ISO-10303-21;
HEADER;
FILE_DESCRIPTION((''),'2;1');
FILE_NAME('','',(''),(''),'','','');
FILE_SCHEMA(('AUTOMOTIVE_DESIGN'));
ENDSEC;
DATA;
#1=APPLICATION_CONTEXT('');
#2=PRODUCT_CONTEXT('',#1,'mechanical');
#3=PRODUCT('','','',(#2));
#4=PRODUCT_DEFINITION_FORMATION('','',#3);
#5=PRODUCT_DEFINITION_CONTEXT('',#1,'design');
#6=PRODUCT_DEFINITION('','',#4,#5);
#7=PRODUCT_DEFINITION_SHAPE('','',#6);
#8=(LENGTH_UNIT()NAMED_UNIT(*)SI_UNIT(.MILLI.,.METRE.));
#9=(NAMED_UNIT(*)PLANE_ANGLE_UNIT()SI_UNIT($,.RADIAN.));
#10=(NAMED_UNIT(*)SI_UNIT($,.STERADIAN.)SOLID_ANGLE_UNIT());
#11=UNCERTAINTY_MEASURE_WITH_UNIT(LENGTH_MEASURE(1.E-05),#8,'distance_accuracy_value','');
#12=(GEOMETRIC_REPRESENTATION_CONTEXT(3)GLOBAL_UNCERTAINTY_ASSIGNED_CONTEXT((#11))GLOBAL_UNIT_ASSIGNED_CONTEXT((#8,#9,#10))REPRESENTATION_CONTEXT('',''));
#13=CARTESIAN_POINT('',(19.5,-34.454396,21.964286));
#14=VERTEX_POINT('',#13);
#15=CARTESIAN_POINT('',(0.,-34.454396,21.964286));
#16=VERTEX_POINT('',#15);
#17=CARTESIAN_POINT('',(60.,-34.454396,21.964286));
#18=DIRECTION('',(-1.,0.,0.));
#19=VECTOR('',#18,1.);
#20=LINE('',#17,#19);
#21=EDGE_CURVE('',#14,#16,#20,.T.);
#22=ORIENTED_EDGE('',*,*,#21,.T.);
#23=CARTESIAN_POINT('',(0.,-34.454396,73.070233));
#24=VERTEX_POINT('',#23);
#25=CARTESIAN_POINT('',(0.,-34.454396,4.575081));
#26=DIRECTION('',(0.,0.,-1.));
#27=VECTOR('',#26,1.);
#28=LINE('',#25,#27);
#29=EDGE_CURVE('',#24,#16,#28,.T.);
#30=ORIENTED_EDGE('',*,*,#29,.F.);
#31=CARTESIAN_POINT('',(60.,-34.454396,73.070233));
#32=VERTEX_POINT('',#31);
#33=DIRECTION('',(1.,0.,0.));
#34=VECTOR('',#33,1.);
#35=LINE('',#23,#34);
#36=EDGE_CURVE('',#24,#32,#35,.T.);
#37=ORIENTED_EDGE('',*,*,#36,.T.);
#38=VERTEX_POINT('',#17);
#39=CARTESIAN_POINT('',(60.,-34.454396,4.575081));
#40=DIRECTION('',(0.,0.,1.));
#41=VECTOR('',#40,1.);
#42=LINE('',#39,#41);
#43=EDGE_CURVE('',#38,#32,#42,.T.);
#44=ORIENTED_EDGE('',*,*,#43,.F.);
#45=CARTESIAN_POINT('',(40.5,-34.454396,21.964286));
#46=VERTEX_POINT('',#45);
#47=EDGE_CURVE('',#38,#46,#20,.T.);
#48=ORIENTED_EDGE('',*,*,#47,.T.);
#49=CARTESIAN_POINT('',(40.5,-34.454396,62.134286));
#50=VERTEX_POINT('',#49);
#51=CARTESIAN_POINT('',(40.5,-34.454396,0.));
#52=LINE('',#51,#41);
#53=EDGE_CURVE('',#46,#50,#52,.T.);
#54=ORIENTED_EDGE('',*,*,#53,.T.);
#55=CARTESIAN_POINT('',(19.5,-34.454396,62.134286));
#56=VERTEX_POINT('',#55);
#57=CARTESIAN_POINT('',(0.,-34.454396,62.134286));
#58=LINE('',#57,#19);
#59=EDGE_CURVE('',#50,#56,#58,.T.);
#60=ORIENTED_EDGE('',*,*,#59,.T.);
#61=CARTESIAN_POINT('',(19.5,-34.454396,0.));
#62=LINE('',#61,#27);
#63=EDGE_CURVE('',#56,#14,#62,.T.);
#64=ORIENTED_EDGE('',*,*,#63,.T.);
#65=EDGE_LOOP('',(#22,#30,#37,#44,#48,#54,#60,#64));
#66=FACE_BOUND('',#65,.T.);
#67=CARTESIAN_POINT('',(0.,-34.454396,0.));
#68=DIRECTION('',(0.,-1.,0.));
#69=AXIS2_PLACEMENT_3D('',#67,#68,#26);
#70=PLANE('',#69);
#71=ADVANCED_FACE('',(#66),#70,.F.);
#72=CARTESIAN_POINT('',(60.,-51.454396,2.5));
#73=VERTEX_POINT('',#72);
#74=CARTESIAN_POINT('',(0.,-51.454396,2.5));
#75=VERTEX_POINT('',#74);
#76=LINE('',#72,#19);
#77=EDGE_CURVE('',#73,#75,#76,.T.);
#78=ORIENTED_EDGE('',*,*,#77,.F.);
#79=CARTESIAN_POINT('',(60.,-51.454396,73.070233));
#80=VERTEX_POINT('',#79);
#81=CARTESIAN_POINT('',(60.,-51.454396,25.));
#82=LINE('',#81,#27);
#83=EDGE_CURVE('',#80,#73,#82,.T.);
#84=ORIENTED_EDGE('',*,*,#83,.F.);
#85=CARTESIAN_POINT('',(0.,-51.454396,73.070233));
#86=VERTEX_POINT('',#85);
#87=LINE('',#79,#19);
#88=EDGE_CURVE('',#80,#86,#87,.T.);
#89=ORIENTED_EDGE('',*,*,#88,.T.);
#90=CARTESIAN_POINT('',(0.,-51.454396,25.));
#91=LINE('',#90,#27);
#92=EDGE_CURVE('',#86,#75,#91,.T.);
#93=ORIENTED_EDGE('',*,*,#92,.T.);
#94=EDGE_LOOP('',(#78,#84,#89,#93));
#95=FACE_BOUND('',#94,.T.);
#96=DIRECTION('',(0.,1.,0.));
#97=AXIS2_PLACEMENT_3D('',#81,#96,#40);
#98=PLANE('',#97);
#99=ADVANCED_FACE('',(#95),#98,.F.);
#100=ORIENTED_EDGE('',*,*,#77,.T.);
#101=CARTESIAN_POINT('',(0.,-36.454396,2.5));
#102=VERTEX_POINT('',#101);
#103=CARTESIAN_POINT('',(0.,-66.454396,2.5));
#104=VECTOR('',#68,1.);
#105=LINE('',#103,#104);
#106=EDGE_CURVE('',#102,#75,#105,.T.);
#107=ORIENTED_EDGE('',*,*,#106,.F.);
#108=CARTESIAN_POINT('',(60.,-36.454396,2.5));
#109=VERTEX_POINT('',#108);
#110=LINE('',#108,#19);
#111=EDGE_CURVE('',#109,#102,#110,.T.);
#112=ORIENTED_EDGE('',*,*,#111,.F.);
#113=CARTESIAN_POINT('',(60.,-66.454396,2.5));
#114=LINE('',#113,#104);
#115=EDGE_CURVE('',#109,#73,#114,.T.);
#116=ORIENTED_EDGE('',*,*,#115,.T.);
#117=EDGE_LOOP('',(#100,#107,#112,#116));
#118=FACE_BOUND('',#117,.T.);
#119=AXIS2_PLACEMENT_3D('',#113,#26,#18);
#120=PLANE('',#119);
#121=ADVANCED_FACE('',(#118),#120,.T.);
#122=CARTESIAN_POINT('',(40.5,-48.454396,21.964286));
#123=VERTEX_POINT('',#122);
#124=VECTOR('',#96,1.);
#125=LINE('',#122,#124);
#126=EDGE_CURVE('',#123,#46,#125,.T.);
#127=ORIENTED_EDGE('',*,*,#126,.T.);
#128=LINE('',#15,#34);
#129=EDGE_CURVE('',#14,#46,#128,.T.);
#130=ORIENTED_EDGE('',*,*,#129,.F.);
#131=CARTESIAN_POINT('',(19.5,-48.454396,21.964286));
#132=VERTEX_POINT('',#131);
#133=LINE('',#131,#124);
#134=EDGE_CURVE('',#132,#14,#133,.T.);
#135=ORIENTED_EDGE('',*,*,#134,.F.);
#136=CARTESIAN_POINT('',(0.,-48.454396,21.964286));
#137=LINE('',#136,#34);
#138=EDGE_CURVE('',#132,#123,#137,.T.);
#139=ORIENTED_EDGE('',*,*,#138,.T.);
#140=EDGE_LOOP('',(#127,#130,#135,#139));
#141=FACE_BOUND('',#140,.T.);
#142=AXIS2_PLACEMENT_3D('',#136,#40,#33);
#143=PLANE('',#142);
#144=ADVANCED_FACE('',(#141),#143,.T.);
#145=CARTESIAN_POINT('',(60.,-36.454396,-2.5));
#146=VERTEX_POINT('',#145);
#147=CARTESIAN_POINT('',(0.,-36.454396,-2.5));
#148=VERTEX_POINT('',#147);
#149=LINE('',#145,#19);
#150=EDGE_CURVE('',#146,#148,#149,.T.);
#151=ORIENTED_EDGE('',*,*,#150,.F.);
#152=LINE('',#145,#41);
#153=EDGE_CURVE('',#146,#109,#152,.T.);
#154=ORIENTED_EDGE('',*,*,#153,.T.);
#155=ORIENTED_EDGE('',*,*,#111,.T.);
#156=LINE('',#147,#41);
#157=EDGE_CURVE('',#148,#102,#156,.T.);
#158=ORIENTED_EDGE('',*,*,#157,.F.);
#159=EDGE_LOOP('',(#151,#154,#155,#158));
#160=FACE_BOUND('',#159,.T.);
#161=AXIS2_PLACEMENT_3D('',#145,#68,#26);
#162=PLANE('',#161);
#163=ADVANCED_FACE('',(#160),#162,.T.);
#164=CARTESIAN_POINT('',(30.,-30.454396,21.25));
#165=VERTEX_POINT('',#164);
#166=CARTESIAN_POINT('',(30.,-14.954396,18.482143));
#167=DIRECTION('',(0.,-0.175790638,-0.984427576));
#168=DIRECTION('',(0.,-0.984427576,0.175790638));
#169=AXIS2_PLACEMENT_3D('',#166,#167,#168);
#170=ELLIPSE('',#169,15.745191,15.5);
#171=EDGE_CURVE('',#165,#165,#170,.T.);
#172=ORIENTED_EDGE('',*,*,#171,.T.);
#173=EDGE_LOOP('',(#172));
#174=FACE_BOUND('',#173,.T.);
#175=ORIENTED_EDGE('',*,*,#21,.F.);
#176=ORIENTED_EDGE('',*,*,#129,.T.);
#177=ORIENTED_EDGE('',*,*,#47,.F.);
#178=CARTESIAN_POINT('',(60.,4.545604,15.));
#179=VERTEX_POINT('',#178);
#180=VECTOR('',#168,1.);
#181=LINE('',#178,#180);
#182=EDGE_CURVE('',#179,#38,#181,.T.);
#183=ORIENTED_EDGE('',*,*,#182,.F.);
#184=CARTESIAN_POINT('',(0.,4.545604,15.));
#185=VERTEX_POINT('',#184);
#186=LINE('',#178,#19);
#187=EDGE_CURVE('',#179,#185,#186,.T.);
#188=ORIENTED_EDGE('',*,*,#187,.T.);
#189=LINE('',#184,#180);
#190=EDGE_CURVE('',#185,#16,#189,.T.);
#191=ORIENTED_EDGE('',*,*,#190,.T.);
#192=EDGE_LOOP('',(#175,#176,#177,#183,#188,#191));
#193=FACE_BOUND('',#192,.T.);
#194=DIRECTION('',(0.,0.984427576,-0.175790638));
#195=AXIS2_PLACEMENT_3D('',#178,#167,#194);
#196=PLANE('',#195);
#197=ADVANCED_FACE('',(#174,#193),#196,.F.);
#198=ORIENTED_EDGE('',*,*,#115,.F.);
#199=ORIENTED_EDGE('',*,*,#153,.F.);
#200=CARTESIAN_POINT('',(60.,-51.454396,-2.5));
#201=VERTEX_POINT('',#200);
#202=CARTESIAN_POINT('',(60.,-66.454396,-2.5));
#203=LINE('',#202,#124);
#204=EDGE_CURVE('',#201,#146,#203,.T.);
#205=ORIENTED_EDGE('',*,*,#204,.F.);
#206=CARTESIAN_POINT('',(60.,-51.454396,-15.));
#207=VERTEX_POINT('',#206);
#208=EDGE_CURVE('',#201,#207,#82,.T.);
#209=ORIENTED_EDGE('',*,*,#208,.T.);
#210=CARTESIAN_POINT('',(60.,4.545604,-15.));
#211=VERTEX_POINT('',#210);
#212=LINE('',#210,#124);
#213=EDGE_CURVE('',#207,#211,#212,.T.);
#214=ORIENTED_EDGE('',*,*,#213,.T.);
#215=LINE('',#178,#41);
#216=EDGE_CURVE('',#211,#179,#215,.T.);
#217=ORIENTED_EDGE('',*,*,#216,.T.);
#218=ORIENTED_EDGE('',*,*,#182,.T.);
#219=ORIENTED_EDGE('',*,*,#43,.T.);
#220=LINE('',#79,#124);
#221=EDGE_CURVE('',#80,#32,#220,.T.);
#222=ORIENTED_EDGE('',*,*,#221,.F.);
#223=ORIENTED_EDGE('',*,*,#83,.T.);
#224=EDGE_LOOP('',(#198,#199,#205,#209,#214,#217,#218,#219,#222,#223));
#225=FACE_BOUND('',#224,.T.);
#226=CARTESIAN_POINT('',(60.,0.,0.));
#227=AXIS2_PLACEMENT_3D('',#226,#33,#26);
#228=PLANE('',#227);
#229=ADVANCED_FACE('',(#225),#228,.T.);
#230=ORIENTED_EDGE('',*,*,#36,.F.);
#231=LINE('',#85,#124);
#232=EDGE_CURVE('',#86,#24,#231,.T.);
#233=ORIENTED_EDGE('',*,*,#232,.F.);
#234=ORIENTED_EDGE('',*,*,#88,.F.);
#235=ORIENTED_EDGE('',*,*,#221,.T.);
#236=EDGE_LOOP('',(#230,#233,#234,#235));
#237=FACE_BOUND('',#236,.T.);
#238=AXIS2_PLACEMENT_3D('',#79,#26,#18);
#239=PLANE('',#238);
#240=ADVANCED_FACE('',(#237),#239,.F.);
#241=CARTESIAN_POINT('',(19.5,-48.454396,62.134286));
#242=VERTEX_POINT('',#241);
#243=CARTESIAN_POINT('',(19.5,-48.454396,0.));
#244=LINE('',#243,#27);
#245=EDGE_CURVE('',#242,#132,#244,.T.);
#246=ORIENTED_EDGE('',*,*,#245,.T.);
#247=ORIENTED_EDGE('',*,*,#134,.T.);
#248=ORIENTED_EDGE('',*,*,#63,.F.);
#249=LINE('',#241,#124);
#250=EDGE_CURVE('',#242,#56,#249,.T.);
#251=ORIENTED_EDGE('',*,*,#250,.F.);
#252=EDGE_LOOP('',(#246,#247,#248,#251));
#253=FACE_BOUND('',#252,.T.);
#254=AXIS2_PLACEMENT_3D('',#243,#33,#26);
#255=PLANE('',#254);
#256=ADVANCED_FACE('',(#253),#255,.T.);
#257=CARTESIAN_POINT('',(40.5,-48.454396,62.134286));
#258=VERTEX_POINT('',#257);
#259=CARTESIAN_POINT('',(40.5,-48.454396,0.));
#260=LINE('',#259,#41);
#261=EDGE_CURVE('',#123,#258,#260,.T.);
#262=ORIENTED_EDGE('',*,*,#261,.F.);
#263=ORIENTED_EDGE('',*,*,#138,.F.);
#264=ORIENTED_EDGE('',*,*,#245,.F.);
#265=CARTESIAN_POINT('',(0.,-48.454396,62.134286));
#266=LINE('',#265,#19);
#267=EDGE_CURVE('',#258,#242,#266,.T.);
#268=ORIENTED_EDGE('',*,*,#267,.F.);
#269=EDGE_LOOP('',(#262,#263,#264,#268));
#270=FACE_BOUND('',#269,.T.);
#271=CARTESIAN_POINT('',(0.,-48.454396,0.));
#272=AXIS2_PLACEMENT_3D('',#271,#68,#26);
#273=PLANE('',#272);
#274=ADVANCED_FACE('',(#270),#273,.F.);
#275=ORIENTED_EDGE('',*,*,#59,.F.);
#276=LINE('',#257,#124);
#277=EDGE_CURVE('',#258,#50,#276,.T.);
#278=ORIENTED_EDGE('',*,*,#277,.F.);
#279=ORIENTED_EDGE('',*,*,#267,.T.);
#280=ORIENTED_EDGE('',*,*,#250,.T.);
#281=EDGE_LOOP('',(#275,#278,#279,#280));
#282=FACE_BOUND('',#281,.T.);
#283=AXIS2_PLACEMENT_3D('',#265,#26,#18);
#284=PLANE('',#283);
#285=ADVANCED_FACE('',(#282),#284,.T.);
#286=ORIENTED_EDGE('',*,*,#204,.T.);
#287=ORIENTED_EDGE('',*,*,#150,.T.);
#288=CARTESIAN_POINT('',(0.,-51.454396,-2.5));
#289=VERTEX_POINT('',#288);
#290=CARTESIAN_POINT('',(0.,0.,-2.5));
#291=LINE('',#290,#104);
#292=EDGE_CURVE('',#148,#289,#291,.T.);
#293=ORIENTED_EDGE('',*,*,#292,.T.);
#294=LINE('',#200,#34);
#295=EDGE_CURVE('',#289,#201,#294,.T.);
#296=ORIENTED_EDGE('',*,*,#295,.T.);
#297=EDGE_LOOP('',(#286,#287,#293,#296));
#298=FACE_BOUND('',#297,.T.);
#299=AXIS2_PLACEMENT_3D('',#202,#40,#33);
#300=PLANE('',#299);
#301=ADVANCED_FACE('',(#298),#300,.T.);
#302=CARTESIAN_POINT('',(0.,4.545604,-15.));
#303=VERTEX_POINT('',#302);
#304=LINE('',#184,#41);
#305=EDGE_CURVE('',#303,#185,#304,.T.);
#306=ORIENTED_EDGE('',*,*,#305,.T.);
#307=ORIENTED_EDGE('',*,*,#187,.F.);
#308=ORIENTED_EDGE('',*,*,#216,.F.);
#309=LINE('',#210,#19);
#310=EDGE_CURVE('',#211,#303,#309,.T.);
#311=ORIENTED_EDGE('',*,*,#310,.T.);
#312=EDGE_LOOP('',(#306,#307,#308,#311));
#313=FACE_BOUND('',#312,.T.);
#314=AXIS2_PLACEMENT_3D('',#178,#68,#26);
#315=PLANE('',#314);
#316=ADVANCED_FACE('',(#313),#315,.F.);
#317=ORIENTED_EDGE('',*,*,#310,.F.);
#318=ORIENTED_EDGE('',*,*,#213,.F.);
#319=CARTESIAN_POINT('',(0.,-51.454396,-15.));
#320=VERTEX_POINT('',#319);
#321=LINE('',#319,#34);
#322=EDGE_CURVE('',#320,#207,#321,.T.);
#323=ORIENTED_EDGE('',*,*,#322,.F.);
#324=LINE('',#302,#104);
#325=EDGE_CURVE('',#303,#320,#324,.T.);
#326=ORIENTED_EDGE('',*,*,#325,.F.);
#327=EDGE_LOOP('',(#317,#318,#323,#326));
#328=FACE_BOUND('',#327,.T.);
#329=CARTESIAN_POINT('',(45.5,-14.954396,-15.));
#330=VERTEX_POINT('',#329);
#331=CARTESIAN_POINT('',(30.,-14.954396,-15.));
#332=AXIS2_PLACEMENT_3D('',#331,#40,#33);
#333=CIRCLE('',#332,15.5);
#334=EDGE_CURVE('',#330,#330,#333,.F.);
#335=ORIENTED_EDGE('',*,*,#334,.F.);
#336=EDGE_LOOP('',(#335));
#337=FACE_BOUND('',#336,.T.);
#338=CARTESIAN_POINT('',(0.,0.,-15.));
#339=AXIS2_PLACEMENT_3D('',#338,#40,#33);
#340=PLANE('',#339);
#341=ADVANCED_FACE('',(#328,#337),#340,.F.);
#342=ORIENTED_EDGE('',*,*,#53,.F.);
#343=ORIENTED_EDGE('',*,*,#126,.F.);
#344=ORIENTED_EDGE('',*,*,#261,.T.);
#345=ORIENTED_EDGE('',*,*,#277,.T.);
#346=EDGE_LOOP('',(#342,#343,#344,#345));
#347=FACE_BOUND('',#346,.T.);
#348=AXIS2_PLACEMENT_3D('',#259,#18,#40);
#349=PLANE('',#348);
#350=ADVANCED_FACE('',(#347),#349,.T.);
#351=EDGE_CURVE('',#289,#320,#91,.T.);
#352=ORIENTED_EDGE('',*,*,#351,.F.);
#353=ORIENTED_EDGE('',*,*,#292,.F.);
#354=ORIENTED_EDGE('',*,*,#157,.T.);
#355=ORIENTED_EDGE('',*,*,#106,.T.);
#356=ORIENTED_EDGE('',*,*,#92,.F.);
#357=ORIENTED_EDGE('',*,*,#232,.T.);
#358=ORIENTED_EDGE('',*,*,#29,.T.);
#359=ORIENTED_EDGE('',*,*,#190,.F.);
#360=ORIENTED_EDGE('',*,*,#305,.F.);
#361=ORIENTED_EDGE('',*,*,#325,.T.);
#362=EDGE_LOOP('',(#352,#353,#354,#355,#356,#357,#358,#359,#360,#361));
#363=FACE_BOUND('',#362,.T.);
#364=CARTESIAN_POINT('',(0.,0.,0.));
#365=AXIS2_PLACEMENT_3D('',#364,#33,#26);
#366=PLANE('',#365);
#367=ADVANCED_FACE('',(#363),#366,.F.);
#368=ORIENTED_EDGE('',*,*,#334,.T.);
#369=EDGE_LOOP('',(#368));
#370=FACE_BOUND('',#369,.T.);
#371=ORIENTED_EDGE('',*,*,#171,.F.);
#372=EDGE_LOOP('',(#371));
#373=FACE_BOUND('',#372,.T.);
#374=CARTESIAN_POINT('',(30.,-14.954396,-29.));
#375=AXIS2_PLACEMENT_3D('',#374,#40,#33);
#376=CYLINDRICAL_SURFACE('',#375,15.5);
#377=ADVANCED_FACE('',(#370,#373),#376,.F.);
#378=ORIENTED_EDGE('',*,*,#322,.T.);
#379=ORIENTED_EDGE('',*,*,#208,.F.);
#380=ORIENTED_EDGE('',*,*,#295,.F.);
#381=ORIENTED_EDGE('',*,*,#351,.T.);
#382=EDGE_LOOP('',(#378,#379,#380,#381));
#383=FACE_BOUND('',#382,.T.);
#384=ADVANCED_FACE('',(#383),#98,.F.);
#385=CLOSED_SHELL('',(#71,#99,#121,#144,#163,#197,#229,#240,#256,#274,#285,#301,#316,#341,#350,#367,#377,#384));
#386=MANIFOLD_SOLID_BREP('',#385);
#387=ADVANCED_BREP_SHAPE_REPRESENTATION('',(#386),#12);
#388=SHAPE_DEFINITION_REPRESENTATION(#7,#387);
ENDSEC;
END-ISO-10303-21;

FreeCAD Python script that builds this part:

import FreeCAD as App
import Part
import Sketcher
Q = App.Units.Quantity


def add_polygon(sketch, points):
    """Adds a closed chain of lines whose ends are joined by coincident constraints."""
    first, n = sketch.GeometryCount, len(points)
    for a, b in zip(points, points[1:] + points[:1]):
        sketch.addGeometry(Part.LineSegment(App.Vector(*a, 0), App.Vector(*b, 0)), False)
    for i in range(n):
        sketch.addConstraint(Sketcher.Constraint("Coincident", first + i, 2, first + (i + 1) % n, 1))

doc = App.newDocument("Part")
body = doc.addObject("PartDesign::Body", "Body")

# Sketch on YZ plane
sketch1 = body.newObject("Sketcher::SketchObject", "Sketch")
sketch1.AttachmentSupport = (doc.getObject("YZ_Plane"), [""])
sketch1.MapMode = "FlatFace"
add_polygon(sketch1, [(-51, 25), (-51, -25), (5, -15), (5, 15)])  # lines 0-3
sketch1.addConstraint(Sketcher.Constraint("Vertical", 0))
sketch1.addConstraint(Sketcher.Constraint("Vertical", 2))
sketch1.addConstraint(Sketcher.Constraint("Equal", 1, 3))
sketch1.addConstraint(Sketcher.Constraint("DistanceY", 0, 2, 0, 1, Q("50 mm")))
sketch1.addConstraint(Sketcher.Constraint("DistanceY", 2, 1, 2, 2, Q("30 mm")))
sketch1.addConstraint(Sketcher.Constraint("DistanceY", 0, 2, -1, 1, Q("25 mm")))
sketch1.addConstraint(Sketcher.Constraint("DistanceX", 0, 2, 1, 2, Q("56 mm")))
sketch1.addConstraint(Sketcher.Constraint("DistanceX", 0, 2, -1, 1, Q("51.454396 mm")))
pad1 = body.newObject("PartDesign::Pad", "Pad")
pad1.Profile = sketch1
pad1.Length = 60

# Sketch on XY plane
sketch2 = body.newObject("Sketcher::SketchObject", "Sketch001")
sketch2.AttachmentSupport = (doc.getObject("XY_Plane"), [""])
sketch2.MapMode = "FlatFace"
sketch2.addGeometry(Part.Circle(App.Vector(30, -15, 0), App.Vector(0, 0, 1), 16), False)
sketch2.addConstraint(Sketcher.Constraint("Diameter", 0, Q("31 mm")))
sketch2.addConstraint(Sketcher.Constraint("DistanceX", -1, 1, 0, 3, Q("30 mm")))
sketch2.addConstraint(Sketcher.Constraint("DistanceY", 0, 3, -1, 1, Q("14.954396 mm")))
pocket1 = body.newObject("PartDesign::Pocket", "Pocket")
pocket1.Profile = sketch2
pocket1.Type = "ThroughAll"
pocket1.Midplane = True

# Sketch on YZ plane
sketch3 = body.newObject("Sketcher::SketchObject", "Sketch002")
sketch3.AttachmentSupport = (doc.getObject("YZ_Plane"), [""])
sketch3.MapMode = "FlatFace"
add_polygon(sketch3, [(-36, 2), (-66, 2), (-66, -2), (-36, -2)])  # lines 0-3
sketch3.addConstraint(Sketcher.Constraint("Horizontal", 0))
sketch3.addConstraint(Sketcher.Constraint("Vertical", 1))
sketch3.addConstraint(Sketcher.Constraint("Horizontal", 2))
sketch3.addConstraint(Sketcher.Constraint("Vertical", 3))
sketch3.addConstraint(Sketcher.Constraint("DistanceX", 0, 2, 0, 1, Q("30 mm")))
sketch3.addConstraint(Sketcher.Constraint("DistanceY", 1, 2, 1, 1, Q("5 mm")))
sketch3.addConstraint(Sketcher.Constraint("DistanceY", -1, 1, 0, 2, Q("2.5 mm")))
sketch3.addConstraint(Sketcher.Constraint("DistanceX", 0, 2, -1, 1, Q("66.454396 mm")))
pocket2 = body.newObject("PartDesign::Pocket", "Pocket001")
pocket2.Profile = sketch3
pocket2.Type = "ThroughAll"
pocket2.Reversed = True

# Sketch on XZ plane
sketch4 = body.newObject("Sketcher::SketchObject", "Sketch003")
sketch4.AttachmentSupport = (doc.getObject("XZ_Plane"), [""])
sketch4.MapMode = "FlatFace"
sketch4.AttachmentOffset = App.Placement(App.Vector(0, 0, 51.454396), App.Rotation())
add_polygon(sketch4, [(60, 5), (60, 90), (0, 90), (0, 5)])  # lines 0-3
sketch4.addConstraint(Sketcher.Constraint("Vertical", 0))
sketch4.addConstraint(Sketcher.Constraint("Horizontal", 1))
sketch4.addConstraint(Sketcher.Constraint("Vertical", 2))
sketch4.addConstraint(Sketcher.Constraint("Horizontal", 3))
sketch4.addConstraint(Sketcher.Constraint("PointOnObject", 1, 2, -2))
sketch4.addConstraint(Sketcher.Constraint("DistanceX", 1, 2, 1, 1, Q("60 mm")))
sketch4.addConstraint(Sketcher.Constraint("DistanceY", -1, 1, 0, 2, Q("90 mm")))
sketch4.addConstraint(Sketcher.Constraint("DistanceY", 0, 1, 0, 2, Q("85.424919 mm")))
pad2 = body.newObject("PartDesign::Pad", "Pad001")
pad2.Profile = sketch4
pad2.Length = 17
pad2.Reversed = True

# Sketch on XZ plane
sketch5 = body.newObject("Sketcher::SketchObject", "Sketch004")
sketch5.AttachmentSupport = (doc.getObject("XZ_Plane"), [""])
sketch5.MapMode = "FlatFace"
sketch5.AttachmentOffset = App.Placement(App.Vector(0, 0, 34.454396), App.Rotation())
add_polygon(sketch5, [(20, 22), (20, 62), (40, 62), (40, 22)])  # lines 0-3
sketch5.addConstraint(Sketcher.Constraint("Vertical", 0))
sketch5.addConstraint(Sketcher.Constraint("Horizontal", 1))
sketch5.addConstraint(Sketcher.Constraint("Vertical", 2))
sketch5.addConstraint(Sketcher.Constraint("Horizontal", 3))
sketch5.addConstraint(Sketcher.Constraint("DistanceX", 1, 1, 1, 2, Q("21 mm")))
sketch5.addConstraint(Sketcher.Constraint("DistanceY", 0, 1, 0, 2, Q("40.17 mm")))
sketch5.addConstraint(Sketcher.Constraint("DistanceX", -1, 1, 0, 2, Q("19.5 mm")))
sketch5.addConstraint(Sketcher.Constraint("DistanceY", -1, 1, 0, 2, Q("62.134286 mm")))
pocket3 = body.newObject("PartDesign::Pocket", "Pocket002")
pocket3.Profile = sketch5
pocket3.Length = 14
pocket3.Reversed = True

# Sketch on XZ plane
sketch6 = body.newObject("Sketcher::SketchObject", "Sketch005")
sketch6.AttachmentSupport = (doc.getObject("XZ_Plane"), [""])
sketch6.MapMode = "FlatFace"
add_polygon(sketch6, [(0, 73), (0, 90), (60, 90), (60, 73)])  # lines 0-3
sketch6.addConstraint(Sketcher.Constraint("Vertical", 0))
sketch6.addConstraint(Sketcher.Constraint("Horizontal", 1))
sketch6.addConstraint(Sketcher.Constraint("Vertical", 2))
sketch6.addConstraint(Sketcher.Constraint("Horizontal", 3))
sketch6.addConstraint(Sketcher.Constraint("PointOnObject", 0, 2, -2))
sketch6.addConstraint(Sketcher.Constraint("DistanceX", 1, 1, 1, 2, Q("60 mm")))
sketch6.addConstraint(Sketcher.Constraint("DistanceY", -1, 1, 0, 2, Q("90 mm")))
sketch6.addConstraint(Sketcher.Constraint("DistanceY", 0, 1, 0, 2, Q("16.929767 mm")))
pocket4 = body.newObject("PartDesign::Pocket", "Pocket003")
pocket4.Profile = sketch6
pocket4.Type = "ThroughAll"
pocket4.Reversed = True

# Sketch on XY plane
sketch7 = body.newObject("Sketcher::SketchObject", "Sketch006")
sketch7.AttachmentSupport = (doc.getObject("XY_Plane"), [""])
sketch7.MapMode = "FlatFace"
sketch7.AttachmentOffset = App.Placement(App.Vector(0, 0, -15), App.Rotation())
add_polygon(sketch7, [(0, 5), (0, -51), (60, -51), (60, 5)])  # lines 0-3
sketch7.addConstraint(Sketcher.Constraint("Vertical", 0))
sketch7.addConstraint(Sketcher.Constraint("Horizontal", 1))
sketch7.addConstraint(Sketcher.Constraint("Vertical", 2))
sketch7.addConstraint(Sketcher.Constraint("Horizontal", 3))
sketch7.addConstraint(Sketcher.Constraint("PointOnObject", 0, 2, -2))
sketch7.addConstraint(Sketcher.Constraint("DistanceX", 1, 1, 1, 2, Q("60 mm")))
sketch7.addConstraint(Sketcher.Constraint("DistanceY", 0, 2, 0, 1, Q("56 mm")))
sketch7.addConstraint(Sketcher.Constraint("DistanceY", 0, 2, -1, 1, Q("51.454396 mm")))
pocket5 = body.newObject("PartDesign::Pocket", "Pocket004")
pocket5.Profile = sketch7
pocket5.Length = 10

doc.recompute()
